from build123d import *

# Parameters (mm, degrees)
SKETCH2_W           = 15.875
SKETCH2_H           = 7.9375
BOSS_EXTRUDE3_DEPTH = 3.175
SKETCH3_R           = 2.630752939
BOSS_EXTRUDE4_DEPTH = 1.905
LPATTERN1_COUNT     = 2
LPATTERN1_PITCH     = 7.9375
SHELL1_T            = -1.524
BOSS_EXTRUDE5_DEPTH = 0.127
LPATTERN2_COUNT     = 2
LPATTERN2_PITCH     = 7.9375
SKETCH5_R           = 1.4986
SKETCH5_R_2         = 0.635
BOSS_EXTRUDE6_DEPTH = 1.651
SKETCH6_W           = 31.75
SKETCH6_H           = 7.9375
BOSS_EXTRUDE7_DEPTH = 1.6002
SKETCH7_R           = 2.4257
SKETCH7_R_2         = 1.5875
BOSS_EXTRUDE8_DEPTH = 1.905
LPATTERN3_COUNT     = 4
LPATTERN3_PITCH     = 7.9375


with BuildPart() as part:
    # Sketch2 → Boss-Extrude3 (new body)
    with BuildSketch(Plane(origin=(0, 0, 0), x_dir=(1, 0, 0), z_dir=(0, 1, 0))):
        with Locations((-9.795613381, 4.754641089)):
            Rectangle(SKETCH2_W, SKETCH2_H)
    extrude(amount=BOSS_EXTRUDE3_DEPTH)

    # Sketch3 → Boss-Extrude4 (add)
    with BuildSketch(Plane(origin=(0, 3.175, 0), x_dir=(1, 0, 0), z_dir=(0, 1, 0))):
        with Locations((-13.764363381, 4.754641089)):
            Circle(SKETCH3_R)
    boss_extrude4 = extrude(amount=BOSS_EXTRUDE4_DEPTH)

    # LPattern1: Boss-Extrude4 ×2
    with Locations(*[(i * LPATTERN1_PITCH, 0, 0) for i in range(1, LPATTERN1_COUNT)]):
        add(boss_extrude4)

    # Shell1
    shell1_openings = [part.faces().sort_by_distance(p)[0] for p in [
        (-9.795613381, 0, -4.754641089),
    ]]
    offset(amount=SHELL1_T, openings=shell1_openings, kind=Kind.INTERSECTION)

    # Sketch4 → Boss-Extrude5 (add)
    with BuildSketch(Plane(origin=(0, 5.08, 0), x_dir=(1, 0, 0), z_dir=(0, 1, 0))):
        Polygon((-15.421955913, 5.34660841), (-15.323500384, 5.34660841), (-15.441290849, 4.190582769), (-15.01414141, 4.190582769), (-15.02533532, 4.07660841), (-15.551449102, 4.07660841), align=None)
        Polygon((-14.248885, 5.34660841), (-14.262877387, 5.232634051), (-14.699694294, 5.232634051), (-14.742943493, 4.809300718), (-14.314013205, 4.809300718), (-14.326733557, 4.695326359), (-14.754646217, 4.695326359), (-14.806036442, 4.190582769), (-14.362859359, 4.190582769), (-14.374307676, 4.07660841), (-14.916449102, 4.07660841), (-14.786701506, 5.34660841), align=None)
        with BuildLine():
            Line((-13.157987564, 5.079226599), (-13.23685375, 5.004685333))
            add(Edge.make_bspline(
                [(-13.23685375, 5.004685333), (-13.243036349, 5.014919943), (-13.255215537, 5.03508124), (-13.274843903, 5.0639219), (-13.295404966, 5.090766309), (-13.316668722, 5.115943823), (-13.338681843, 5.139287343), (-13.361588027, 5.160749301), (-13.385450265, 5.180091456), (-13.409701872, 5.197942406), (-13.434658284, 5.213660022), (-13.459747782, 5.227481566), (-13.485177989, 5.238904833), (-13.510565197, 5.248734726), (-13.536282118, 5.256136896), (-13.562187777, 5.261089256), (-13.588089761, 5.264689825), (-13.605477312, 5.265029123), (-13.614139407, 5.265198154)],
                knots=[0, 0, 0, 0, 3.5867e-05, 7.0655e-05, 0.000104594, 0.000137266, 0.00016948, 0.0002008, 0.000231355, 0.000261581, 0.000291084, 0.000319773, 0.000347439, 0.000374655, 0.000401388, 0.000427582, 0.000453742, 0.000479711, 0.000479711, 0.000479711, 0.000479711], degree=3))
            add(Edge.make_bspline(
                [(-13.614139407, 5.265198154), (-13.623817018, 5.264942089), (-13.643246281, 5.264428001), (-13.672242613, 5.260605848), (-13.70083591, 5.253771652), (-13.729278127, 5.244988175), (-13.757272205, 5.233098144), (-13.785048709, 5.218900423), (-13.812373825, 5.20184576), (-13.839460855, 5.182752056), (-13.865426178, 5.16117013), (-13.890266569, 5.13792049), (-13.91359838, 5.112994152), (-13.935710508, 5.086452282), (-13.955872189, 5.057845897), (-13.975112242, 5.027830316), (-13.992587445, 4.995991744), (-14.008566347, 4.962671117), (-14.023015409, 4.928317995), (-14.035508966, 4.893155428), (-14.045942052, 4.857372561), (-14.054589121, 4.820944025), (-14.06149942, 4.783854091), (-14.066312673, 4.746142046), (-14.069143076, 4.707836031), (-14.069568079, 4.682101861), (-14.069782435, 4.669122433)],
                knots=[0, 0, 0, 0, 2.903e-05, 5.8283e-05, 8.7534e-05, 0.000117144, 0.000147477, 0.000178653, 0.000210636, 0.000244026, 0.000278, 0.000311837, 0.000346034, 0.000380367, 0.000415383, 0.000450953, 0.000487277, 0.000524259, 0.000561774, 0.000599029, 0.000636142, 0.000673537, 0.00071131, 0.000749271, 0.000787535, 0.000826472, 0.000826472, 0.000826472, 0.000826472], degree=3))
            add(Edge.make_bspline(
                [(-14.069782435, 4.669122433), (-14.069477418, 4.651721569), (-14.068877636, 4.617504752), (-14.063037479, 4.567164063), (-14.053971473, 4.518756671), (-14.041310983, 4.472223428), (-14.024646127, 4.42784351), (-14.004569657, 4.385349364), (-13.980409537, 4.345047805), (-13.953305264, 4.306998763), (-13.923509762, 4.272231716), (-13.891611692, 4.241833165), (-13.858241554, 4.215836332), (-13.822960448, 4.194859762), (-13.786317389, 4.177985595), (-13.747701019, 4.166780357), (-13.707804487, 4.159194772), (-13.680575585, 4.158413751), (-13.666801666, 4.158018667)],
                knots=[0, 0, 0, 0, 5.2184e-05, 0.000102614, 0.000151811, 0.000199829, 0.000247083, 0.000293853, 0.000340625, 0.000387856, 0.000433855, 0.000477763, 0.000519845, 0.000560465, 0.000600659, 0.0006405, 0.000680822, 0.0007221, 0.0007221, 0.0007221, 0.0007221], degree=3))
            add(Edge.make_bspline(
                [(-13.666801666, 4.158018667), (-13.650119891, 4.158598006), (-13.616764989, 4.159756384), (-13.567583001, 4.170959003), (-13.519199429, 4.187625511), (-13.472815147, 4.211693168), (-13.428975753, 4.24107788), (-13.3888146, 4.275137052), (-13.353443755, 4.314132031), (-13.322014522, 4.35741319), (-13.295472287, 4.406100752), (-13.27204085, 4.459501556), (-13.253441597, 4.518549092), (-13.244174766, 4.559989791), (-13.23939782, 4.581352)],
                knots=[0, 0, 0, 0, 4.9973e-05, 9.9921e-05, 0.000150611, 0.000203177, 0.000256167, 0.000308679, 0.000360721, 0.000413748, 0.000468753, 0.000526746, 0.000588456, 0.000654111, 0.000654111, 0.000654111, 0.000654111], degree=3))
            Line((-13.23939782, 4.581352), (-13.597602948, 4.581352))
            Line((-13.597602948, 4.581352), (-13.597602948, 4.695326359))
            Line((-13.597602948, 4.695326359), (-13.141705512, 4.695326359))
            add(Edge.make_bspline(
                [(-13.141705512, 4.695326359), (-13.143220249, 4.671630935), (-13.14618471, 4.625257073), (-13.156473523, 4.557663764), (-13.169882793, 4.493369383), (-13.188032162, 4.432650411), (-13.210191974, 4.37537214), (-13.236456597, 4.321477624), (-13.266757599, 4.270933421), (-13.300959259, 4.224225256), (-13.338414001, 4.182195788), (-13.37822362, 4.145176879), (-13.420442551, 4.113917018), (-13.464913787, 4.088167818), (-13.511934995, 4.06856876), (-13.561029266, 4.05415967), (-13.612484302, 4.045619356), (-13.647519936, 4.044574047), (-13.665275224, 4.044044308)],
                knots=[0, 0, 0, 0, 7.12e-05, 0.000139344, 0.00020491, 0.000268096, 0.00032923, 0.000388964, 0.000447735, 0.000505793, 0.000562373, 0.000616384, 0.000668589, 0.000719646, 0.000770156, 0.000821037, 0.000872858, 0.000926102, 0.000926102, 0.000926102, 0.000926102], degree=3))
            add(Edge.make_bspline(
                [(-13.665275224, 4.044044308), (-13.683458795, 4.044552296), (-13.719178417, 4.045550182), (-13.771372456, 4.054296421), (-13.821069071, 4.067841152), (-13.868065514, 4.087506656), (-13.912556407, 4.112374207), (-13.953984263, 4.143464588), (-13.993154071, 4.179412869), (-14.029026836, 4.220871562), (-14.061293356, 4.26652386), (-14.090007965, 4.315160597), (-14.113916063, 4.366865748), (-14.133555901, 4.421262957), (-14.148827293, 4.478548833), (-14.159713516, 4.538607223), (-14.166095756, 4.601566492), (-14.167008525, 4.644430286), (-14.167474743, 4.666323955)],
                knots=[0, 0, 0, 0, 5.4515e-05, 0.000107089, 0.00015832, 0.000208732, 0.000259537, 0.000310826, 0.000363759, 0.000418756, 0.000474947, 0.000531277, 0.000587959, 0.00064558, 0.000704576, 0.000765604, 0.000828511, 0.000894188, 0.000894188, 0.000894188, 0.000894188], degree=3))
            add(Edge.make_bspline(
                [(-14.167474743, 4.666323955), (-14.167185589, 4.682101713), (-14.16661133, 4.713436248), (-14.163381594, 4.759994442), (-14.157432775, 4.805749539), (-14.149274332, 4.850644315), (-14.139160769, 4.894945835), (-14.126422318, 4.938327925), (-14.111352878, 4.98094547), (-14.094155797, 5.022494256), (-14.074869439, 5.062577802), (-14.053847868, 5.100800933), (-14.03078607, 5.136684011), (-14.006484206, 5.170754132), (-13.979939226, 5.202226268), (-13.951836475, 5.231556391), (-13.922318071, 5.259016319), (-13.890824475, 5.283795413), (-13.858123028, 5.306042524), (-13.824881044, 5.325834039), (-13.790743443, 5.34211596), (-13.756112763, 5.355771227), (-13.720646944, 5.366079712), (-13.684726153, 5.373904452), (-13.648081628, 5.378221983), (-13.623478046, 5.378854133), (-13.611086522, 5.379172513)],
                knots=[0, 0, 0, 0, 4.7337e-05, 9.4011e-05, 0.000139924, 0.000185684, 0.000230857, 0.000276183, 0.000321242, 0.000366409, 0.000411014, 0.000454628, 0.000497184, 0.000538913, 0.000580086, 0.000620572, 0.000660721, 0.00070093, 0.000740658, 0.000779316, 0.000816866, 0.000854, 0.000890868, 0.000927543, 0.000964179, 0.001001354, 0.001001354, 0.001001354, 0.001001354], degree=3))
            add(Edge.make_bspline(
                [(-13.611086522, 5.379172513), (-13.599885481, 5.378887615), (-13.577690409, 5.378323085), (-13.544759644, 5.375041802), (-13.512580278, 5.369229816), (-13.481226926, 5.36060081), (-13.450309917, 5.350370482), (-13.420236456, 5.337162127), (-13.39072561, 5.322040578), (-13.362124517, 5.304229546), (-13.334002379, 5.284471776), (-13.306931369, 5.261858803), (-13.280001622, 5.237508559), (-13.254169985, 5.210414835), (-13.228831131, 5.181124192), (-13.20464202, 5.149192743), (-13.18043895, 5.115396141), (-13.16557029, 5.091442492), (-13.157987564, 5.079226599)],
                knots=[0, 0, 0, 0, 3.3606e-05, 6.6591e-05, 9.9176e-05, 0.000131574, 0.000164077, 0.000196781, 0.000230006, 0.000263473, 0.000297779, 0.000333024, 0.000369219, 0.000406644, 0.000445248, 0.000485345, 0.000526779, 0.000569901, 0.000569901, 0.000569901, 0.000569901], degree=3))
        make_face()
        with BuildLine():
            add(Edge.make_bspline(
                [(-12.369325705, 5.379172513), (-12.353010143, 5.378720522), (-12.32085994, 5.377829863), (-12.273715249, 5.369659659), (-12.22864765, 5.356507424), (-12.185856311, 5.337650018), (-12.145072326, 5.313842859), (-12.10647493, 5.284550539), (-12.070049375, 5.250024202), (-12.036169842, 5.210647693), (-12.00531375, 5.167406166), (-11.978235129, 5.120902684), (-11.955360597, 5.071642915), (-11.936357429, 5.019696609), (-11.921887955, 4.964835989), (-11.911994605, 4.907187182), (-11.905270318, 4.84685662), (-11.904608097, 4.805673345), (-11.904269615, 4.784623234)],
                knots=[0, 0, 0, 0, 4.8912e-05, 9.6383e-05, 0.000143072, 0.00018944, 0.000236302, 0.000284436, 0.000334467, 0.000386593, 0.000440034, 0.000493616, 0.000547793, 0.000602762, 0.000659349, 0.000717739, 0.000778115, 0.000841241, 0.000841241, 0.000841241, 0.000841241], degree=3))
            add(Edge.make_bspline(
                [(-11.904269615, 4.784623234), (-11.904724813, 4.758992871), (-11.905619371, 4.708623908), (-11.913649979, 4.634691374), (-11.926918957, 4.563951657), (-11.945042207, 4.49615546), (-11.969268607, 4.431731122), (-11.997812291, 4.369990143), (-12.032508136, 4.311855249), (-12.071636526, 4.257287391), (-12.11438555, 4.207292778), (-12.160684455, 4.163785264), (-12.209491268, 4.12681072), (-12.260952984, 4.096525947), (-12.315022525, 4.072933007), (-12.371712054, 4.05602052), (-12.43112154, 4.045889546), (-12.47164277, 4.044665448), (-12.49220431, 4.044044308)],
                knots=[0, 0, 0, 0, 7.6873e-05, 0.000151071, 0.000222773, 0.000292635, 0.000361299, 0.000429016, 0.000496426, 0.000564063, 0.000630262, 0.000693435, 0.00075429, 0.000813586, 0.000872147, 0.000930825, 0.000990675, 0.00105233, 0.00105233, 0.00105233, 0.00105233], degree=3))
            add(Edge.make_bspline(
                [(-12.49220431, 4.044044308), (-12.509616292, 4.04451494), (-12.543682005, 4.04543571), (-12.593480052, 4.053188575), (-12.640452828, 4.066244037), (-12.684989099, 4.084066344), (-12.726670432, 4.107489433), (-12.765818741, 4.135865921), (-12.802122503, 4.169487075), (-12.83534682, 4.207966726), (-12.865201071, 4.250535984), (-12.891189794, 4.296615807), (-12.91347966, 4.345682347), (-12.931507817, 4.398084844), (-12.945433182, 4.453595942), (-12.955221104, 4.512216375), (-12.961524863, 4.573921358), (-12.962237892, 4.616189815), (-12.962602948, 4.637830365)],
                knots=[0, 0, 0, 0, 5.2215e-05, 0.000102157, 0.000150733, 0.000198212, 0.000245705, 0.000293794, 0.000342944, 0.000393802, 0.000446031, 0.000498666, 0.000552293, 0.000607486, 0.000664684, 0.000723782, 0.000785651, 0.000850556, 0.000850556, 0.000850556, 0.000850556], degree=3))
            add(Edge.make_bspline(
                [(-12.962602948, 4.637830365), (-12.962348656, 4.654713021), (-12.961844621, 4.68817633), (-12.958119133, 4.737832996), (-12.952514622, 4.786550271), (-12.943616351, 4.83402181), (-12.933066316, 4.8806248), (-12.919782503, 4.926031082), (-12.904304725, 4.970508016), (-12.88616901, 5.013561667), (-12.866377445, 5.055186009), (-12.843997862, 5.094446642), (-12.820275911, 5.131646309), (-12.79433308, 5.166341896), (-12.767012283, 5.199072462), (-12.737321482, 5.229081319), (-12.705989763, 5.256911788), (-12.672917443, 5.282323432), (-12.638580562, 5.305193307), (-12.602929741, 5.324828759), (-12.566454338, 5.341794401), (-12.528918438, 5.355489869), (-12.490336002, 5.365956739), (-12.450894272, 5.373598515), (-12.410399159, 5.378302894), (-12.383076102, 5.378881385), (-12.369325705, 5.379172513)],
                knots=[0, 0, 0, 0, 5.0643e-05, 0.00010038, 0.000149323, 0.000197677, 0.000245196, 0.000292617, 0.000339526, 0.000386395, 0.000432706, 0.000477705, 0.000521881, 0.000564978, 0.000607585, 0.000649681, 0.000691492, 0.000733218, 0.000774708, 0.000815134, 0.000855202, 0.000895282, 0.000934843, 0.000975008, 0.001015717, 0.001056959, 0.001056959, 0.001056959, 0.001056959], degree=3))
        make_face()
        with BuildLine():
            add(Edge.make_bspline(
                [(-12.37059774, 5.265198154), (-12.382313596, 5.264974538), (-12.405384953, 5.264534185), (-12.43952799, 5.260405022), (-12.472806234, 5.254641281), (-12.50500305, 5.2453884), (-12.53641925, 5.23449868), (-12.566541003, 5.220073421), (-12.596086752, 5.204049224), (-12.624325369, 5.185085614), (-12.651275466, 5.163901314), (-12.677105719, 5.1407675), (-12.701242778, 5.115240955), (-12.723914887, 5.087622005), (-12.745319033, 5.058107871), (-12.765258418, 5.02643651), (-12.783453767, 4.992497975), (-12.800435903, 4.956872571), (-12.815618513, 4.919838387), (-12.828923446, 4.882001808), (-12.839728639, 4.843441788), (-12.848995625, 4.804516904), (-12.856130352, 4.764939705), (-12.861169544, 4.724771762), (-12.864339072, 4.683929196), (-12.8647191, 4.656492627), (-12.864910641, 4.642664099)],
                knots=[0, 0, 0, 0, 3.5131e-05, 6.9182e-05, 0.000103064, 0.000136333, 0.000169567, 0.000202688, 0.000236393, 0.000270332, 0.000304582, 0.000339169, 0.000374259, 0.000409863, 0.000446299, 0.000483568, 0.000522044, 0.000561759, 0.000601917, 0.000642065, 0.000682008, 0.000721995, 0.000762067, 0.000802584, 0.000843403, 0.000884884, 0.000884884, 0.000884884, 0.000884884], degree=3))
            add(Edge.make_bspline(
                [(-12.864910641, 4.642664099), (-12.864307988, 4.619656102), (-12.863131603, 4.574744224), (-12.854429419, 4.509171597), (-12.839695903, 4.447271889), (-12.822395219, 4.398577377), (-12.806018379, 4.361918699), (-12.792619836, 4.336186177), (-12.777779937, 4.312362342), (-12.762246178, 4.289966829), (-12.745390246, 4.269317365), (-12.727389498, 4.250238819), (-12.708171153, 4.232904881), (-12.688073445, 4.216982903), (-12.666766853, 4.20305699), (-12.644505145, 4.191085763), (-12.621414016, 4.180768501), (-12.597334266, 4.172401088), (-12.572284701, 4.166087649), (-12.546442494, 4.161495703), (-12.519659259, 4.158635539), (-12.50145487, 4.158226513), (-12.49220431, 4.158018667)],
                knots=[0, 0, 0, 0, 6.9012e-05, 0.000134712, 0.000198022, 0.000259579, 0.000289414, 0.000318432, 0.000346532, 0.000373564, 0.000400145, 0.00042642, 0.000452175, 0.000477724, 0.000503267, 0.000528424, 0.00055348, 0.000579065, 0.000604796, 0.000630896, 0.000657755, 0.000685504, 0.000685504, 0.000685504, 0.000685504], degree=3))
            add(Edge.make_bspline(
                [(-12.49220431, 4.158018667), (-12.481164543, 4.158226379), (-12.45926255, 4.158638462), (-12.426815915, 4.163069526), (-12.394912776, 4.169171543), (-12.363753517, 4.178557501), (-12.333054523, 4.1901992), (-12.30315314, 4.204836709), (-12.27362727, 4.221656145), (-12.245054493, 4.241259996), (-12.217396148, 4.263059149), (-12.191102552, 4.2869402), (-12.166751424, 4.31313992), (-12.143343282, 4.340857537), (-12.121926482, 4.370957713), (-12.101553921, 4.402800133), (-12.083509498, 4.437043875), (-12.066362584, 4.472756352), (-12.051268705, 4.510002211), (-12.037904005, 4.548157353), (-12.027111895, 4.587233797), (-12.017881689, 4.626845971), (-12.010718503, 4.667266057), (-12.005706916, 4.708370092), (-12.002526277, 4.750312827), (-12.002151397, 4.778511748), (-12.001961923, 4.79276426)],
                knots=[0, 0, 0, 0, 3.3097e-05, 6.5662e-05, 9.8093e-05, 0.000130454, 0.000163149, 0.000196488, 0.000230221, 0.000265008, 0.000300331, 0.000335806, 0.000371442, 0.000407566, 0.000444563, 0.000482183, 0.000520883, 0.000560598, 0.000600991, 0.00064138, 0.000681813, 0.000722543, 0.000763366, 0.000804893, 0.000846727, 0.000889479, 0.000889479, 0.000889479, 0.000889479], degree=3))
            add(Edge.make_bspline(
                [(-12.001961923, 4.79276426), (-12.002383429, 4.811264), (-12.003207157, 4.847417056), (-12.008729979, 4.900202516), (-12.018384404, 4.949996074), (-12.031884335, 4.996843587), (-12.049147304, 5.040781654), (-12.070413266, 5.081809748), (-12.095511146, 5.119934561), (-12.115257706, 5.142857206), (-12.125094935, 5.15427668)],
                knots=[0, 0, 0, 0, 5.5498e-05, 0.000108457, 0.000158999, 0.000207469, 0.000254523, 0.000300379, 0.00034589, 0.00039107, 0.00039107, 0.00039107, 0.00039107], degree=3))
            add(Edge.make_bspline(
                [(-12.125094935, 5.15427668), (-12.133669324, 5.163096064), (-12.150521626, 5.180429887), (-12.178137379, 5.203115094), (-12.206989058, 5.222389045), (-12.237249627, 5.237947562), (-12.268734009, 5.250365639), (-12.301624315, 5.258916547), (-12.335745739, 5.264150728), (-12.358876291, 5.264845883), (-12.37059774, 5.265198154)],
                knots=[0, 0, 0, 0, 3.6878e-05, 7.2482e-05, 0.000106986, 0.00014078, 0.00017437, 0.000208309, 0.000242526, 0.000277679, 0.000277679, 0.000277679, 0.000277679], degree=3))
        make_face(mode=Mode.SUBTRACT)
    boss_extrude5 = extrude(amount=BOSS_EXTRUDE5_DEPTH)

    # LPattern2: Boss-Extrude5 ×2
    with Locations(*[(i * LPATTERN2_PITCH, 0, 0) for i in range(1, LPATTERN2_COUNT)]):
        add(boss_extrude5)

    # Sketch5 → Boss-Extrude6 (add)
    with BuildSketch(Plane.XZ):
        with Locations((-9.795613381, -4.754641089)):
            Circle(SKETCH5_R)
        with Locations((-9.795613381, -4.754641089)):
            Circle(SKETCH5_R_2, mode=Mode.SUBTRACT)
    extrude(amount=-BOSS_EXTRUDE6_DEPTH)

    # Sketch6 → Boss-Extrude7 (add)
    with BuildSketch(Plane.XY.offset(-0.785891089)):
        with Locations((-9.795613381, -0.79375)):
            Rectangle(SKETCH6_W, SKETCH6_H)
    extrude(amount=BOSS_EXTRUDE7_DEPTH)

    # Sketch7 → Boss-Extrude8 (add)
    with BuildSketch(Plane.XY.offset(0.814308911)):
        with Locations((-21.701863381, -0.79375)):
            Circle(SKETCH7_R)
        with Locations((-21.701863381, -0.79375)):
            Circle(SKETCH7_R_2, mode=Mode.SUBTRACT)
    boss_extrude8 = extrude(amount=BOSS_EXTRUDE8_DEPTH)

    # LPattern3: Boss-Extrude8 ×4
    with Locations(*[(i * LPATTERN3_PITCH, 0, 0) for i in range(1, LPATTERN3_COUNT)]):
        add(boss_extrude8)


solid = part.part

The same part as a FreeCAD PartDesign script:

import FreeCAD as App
import Part
import Sketcher
Q = App.Units.Quantity


def faces_at(feature, points):
    """Names of the faces that lie closest to the given points."""
    faces = feature.Shape.Faces
    near = lambda p: min(range(len(faces)), key=lambda i: faces[i].distToShape(Part.Vertex(*p))[0])
    return sorted({f"Face{near(p) + 1}" for p in points})

doc = App.newDocument("Part")
params = doc.addObject("Spreadsheet::Sheet", "Params")
for row, (alias, value) in enumerate([
    ("sketch1_width", "0.625 in"),
    ("sketch1_height", "0.3125 in"),
    ("pad1_length", "0.125 in"),
    ("pad2_length", "0.075 in"),
    ("linearpattern_pitch", "0.3125 in"),
    ("thickness_wall", "0.06 in"),
    ("pad3_length", "0.005 in"),
    ("linearpattern2_pitch", "0.3125 in"),
    ("sketch4_diameter", "0.05 in"),
    ("sketch4_diameter2", "0.118 in"),
    ("pad4_length", "0.065 in"),
    ("sketch5_width", "1.25 in"),
    ("sketch5_height", "0.3125 in"),
    ("pad5_length", "0.063 in"),
    ("sketch6_diameter", "0.191 in"),
    ("sketch6_diameter2", "0.125 in"),
    ("pad6_length", "0.075 in"),
    ("linearpattern3_pitch", "0.3125 in"),
], start=1):
    params.set(f"A{row}", alias)
    params.set(f"B{row}", "=" + value)
    params.setAlias(f"B{row}", alias)

body = doc.addObject("PartDesign::Body", "Body")

# Sketch on XZ plane
sketch1 = body.newObject("Sketcher::SketchObject", "Sketch")
sketch1.AttachmentSupport = (doc.getObject("XZ_Plane"), [""])
sketch1.MapMode = "FlatFace"
sketch1.addGeometry([
    Part.LineSegment(App.Vector(-18, -9, 0), App.Vector(-18, -1, 0)),
    Part.LineSegment(App.Vector(-18, -1, 0), App.Vector(-2, -1, 0)),
    Part.LineSegment(App.Vector(-2, -1, 0), App.Vector(-2, -9, 0)),
    Part.LineSegment(App.Vector(-2, -9, 0), App.Vector(-18, -9, 0)),
], False)
sketch1.addConstraint([
    Sketcher.Constraint("Coincident", 0, 2, 1, 1),
    Sketcher.Constraint("Coincident", 1, 2, 2, 1),
    Sketcher.Constraint("Coincident", 2, 2, 3, 1),
    Sketcher.Constraint("Coincident", 3, 2, 0, 1),
    Sketcher.Constraint("Vertical", 0),
    Sketcher.Constraint("Horizontal", 1),
    Sketcher.Constraint("Vertical", 2),
    Sketcher.Constraint("Horizontal", 3),
    Sketcher.Constraint("DistanceX", 1, 1, 1, 2, Q("0.625 in")),
    Sketcher.Constraint("DistanceY", 0, 1, 0, 2, Q("0.3125 in")),
    Sketcher.Constraint("DistanceY", 0, 2, -1, 1, Q("0.785891 mm")),
    Sketcher.Constraint("DistanceX", 0, 2, -1, 1, Q("17.733113 mm")),
])
sketch1.setExpression("Constraints[8]", "Params.sketch1_width")
sketch1.setExpression("Constraints[9]", "Params.sketch1_height")
pad1 = body.newObject("PartDesign::Pad", "Pad")
pad1.Profile = sketch1
pad1.setExpression("Length", "Params.pad1_length")
pad1.Reversed = True

# Sketch on XZ plane
sketch2 = body.newObject("Sketcher::SketchObject", "Sketch001")
sketch2.AttachmentSupport = (doc.getObject("XZ_Plane"), [""])
sketch2.MapMode = "FlatFace"
sketch2.AttachmentOffset = App.Placement(App.Vector(0, 0, -0.125 * 25.4), App.Rotation())
sketch2.addGeometry(Part.Circle(App.Vector(-13.8, -4.8, 0), App.Vector(0, 0, 1), 2.6), False)
sketch2.addConstraint([
    Sketcher.Constraint("Diameter", 0, Q("5.261506 mm")),
    Sketcher.Constraint("DistanceY", 0, 3, -1, 1, Q("4.754641 mm")),
    Sketcher.Constraint("DistanceX", 0, 3, -1, 1, Q("13.764363 mm")),
])
pad2 = body.newObject("PartDesign::Pad", "Pad001")
pad2.Profile = sketch2
pad2.setExpression("Length", "Params.pad2_length")
pad2.Reversed = True
doc.recompute()

linearpattern = body.newObject("PartDesign::LinearPattern", "LinearPattern")
linearpattern.Originals = [pad2]
linearpattern.Direction = (doc.getObject("X_Axis"), [""])
linearpattern.Mode = "offset"
linearpattern.setExpression("Offset", "Params.linearpattern_pitch")
linearpattern.Occurrences = 2
body.Tip = linearpattern
doc.recompute()

thickness = body.newObject("PartDesign::Thickness", "Thickness")
thickness.Base = (linearpattern, faces_at(linearpattern, [(-9.796, 0, -4.755)]))
thickness.setExpression("Value", "Params.thickness_wall")
thickness.Reversed = True
thickness.Join = "Intersection"

# Sketch on XZ plane
sketch3 = body.newObject("Sketcher::SketchObject", "Sketch002")
sketch3.AttachmentSupport = (doc.getObject("XZ_Plane"), [""])
sketch3.MapMode = "FlatFace"
sketch3.AttachmentOffset = App.Placement(App.Vector(0, 0, -0.2 * 25.4), App.Rotation())
sketch3.addGeometry([
    Part.LineSegment(App.Vector(-15.3235, -5.346608, 0), App.Vector(-15.421956, -5.346608, 0)),  # 0
    Part.LineSegment(App.Vector(-15.421956, -5.346608, 0), App.Vector(-15.551449, -4.076608, 0)),  # 1
    Part.LineSegment(App.Vector(-15.551449, -4.076608, 0), App.Vector(-15.025335, -4.076608, 0)),  # 2
    Part.LineSegment(App.Vector(-15.025335, -4.076608, 0), App.Vector(-15.014141, -4.190583, 0)),  # 3
    Part.LineSegment(App.Vector(-15.014141, -4.190583, 0), App.Vector(-15.441291, -4.190583, 0)),  # 4
    Part.LineSegment(App.Vector(-15.441291, -4.190583, 0), App.Vector(-15.3235, -5.346608, 0)),  # 5
    Part.LineSegment(App.Vector(-14.262877, -5.232634, 0), App.Vector(-14.248885, -5.346608, 0)),  # 6
    Part.LineSegment(App.Vector(-14.248885, -5.346608, 0), App.Vector(-14.786702, -5.346608, 0)),  # 7
    Part.LineSegment(App.Vector(-14.786702, -5.346608, 0), App.Vector(-14.916449, -4.076608, 0)),  # 8
    Part.LineSegment(App.Vector(-14.916449, -4.076608, 0), App.Vector(-14.374308, -4.076608, 0)),  # 9
    Part.LineSegment(App.Vector(-14.374308, -4.076608, 0), App.Vector(-14.362859, -4.190583, 0)),  # 10
    Part.LineSegment(App.Vector(-14.362859, -4.190583, 0), App.Vector(-14.806036, -4.190583, 0)),  # 11
    Part.LineSegment(App.Vector(-14.806036, -4.190583, 0), App.Vector(-14.754646, -4.695326, 0)),  # 12
    Part.LineSegment(App.Vector(-14.754646, -4.695326, 0), App.Vector(-14.326734, -4.695326, 0)),  # 13
    Part.LineSegment(App.Vector(-14.326734, -4.695326, 0), App.Vector(-14.314013, -4.809301, 0)),  # 14
    Part.LineSegment(App.Vector(-14.314013, -4.809301, 0), App.Vector(-14.742943, -4.809301, 0)),  # 15
    Part.LineSegment(App.Vector(-14.742943, -4.809301, 0), App.Vector(-14.699694, -5.232634, 0)),  # 16
    Part.LineSegment(App.Vector(-14.699694, -5.232634, 0), App.Vector(-14.262877, -5.232634, 0)),  # 17
    Part.LineSegment(App.Vector(-13.236854, -5.004685, 0), App.Vector(-13.157988, -5.079227, 0)),  # 18
    Part.BSplineCurve([App.Vector(-13.611087, -5.379173, 0), App.Vector(-13.599885, -5.378888, 0), App.Vector(-13.57769, -5.378323, 0), App.Vector(-13.54476, -5.375042, 0), App.Vector(-13.51258, -5.36923, 0), App.Vector(-13.481227, -5.360601, 0), App.Vector(-13.45031, -5.35037, 0), App.Vector(-13.420236, -5.337162, 0), App.Vector(-13.390726, -5.322041, 0), App.Vector(-13.362125, -5.30423, 0), App.Vector(-13.334002, -5.284472, 0), App.Vector(-13.306931, -5.261859, 0), App.Vector(-13.280002, -5.237509, 0), App.Vector(-13.25417, -5.210415, 0), App.Vector(-13.228831, -5.181124, 0), App.Vector(-13.204642, -5.149193, 0), App.Vector(-13.180439, -5.115396, 0), App.Vector(-13.16557, -5.091442, 0), App.Vector(-13.157988, -5.079227, 0)], [4, 1, 1, 1, 1, 1, 1, 1, 1, 1, 1, 1, 1, 1, 1, 1, 4], [0, 0.000033606, 0.000066591, 0.000099176, 0.000131574, 0.000164077, 0.000196781, 0.000230006, 0.000263473, 0.000297779, 0.000333024, 0.000369219, 0.000406644, 0.000445248, 0.000485345, 0.000526779, 0.000569901], False, 3, [1, 1, 1, 1, 1, 1, 1, 1, 1, 1, 1, 1, 1, 1, 1, 1, 1, 1, 1], False),  # 19
    Part.BSplineCurve([App.Vector(-14.167475, -4.666324, 0), App.Vector(-14.167186, -4.682102, 0), App.Vector(-14.166611, -4.713436, 0), App.Vector(-14.163382, -4.759994, 0), App.Vector(-14.157433, -4.80575, 0), App.Vector(-14.149274, -4.850644, 0), App.Vector(-14.139161, -4.894946, 0), App.Vector(-14.126422, -4.938328, 0), App.Vector(-14.111353, -4.980945, 0), App.Vector(-14.094156, -5.022494, 0), App.Vector(-14.074869, -5.062578, 0), App.Vector(-14.053848, -5.100801, 0), App.Vector(-14.030786, -5.136684, 0), App.Vector(-14.006484, -5.170754, 0), App.Vector(-13.979939, -5.202226, 0), App.Vector(-13.951836, -5.231556, 0), App.Vector(-13.922318, -5.259016, 0), App.Vector(-13.890824, -5.283795, 0), App.Vector(-13.858123, -5.306043, 0), App.Vector(-13.824881, -5.325834, 0), App.Vector(-13.790743, -5.342116, 0), App.Vector(-13.756113, -5.355771, 0), App.Vector(-13.720647, -5.36608, 0), App.Vector(-13.684726, -5.373904, 0), App.Vector(-13.648082, -5.378222, 0), App.Vector(-13.623478, -5.378854, 0), App.Vector(-13.611087, -5.379173, 0)], [4, 1, 1, 1, 1, 1, 1, 1, 1, 1, 1, 1, 1, 1, 1, 1, 1, 1, 1, 1, 1, 1, 1, 1, 4], [0, 0.000047337, 0.000094011, 0.000139924, 0.000185684, 0.000230857, 0.000276183, 0.000321242, 0.000366409, 0.000411014, 0.000454628, 0.000497184, 0.000538913, 0.000580086, 0.000620572, 0.000660721, 0.00070093, 0.000740658, 0.000779316, 0.000816866, 0.000854, 0.000890868, 0.000927543, 0.000964179, 0.001001354], False, 3, [1, 1, 1, 1, 1, 1, 1, 1, 1, 1, 1, 1, 1, 1, 1, 1, 1, 1, 1, 1, 1, 1, 1, 1, 1, 1, 1], False),  # 20
    Part.BSplineCurve([App.Vector(-13.665275, -4.044044, 0), App.Vector(-13.683459, -4.044552, 0), App.Vector(-13.719178, -4.04555, 0), App.Vector(-13.771372, -4.054296, 0), App.Vector(-13.821069, -4.067841, 0), App.Vector(-13.868066, -4.087507, 0), App.Vector(-13.912556, -4.112374, 0), App.Vector(-13.953984, -4.143465, 0), App.Vector(-13.993154, -4.179413, 0), App.Vector(-14.029027, -4.220872, 0), App.Vector(-14.061293, -4.266524, 0), App.Vector(-14.090008, -4.315161, 0), App.Vector(-14.113916, -4.366866, 0), App.Vector(-14.133556, -4.421263, 0), App.Vector(-14.148827, -4.478549, 0), App.Vector(-14.159714, -4.538607, 0), App.Vector(-14.166096, -4.601566, 0), App.Vector(-14.167009, -4.64443, 0), App.Vector(-14.167475, -4.666324, 0)], [4, 1, 1, 1, 1, 1, 1, 1, 1, 1, 1, 1, 1, 1, 1, 1, 4], [0, 0.000054515, 0.000107089, 0.00015832, 0.000208732, 0.000259537, 0.000310826, 0.000363759, 0.000418756, 0.000474947, 0.000531277, 0.000587959, 0.00064558, 0.000704576, 0.000765604, 0.000828511, 0.000894188], False, 3, [1, 1, 1, 1, 1, 1, 1, 1, 1, 1, 1, 1, 1, 1, 1, 1, 1, 1, 1], False),  # 21
    Part.BSplineCurve([App.Vector(-13.141706, -4.695326, 0), App.Vector(-13.14322, -4.671631, 0), App.Vector(-13.146185, -4.625257, 0), App.Vector(-13.156474, -4.557664, 0), App.Vector(-13.169883, -4.493369, 0), App.Vector(-13.188032, -4.43265, 0), App.Vector(-13.210192, -4.375372, 0), App.Vector(-13.236457, -4.321478, 0), App.Vector(-13.266758, -4.270933, 0), App.Vector(-13.300959, -4.224225, 0), App.Vector(-13.338414, -4.182196, 0), App.Vector(-13.378224, -4.145177, 0), App.Vector(-13.420443, -4.113917, 0), App.Vector(-13.464914, -4.088168, 0), App.Vector(-13.511935, -4.068569, 0), App.Vector(-13.561029, -4.05416, 0), App.Vector(-13.612484, -4.045619, 0), App.Vector(-13.64752, -4.044574, 0), App.Vector(-13.665275, -4.044044, 0)], [4, 1, 1, 1, 1, 1, 1, 1, 1, 1, 1, 1, 1, 1, 1, 1, 4], [0, 0.0000712, 0.000139344, 0.00020491, 0.000268096, 0.00032923, 0.000388964, 0.000447735, 0.000505793, 0.000562373, 0.000616384, 0.000668589, 0.000719646, 0.000770156, 0.000821037, 0.000872858, 0.000926102], False, 3, [1, 1, 1, 1, 1, 1, 1, 1, 1, 1, 1, 1, 1, 1, 1, 1, 1, 1, 1], False),  # 22
    Part.LineSegment(App.Vector(-13.141706, -4.695326, 0), App.Vector(-13.597603, -4.695326, 0)),  # 23
    Part.LineSegment(App.Vector(-13.597603, -4.695326, 0), App.Vector(-13.597603, -4.581352, 0)),  # 24
    Part.LineSegment(App.Vector(-13.597603, -4.581352, 0), App.Vector(-13.239398, -4.581352, 0)),  # 25
    Part.BSplineCurve([App.Vector(-13.666802, -4.158019, 0), App.Vector(-13.65012, -4.158598, 0), App.Vector(-13.616765, -4.159756, 0), App.Vector(-13.567583, -4.170959, 0), App.Vector(-13.519199, -4.187626, 0), App.Vector(-13.472815, -4.211693, 0), App.Vector(-13.428976, -4.241078, 0), App.Vector(-13.388815, -4.275137, 0), App.Vector(-13.353444, -4.314132, 0), App.Vector(-13.322015, -4.357413, 0), App.Vector(-13.295472, -4.406101, 0), App.Vector(-13.272041, -4.459502, 0), App.Vector(-13.253442, -4.518549, 0), App.Vector(-13.244175, -4.55999, 0), App.Vector(-13.239398, -4.581352, 0)], [4, 1, 1, 1, 1, 1, 1, 1, 1, 1, 1, 1, 4], [0, 0.000049973, 0.000099921, 0.000150611, 0.000203177, 0.000256167, 0.000308679, 0.000360721, 0.000413748, 0.000468753, 0.000526746, 0.000588456, 0.000654111], False, 3, [1, 1, 1, 1, 1, 1, 1, 1, 1, 1, 1, 1, 1, 1, 1], False),  # 26
    Part.BSplineCurve([App.Vector(-14.069782, -4.669122, 0), App.Vector(-14.069477, -4.651722, 0), App.Vector(-14.068878, -4.617505, 0), App.Vector(-14.063037, -4.567164, 0), App.Vector(-14.053971, -4.518757, 0), App.Vector(-14.041311, -4.472223, 0), App.Vector(-14.024646, -4.427844, 0), App.Vector(-14.00457, -4.385349, 0), App.Vector(-13.98041, -4.345048, 0), App.Vector(-13.953305, -4.306999, 0), App.Vector(-13.92351, -4.272232, 0), App.Vector(-13.891612, -4.241833, 0), App.Vector(-13.858242, -4.215836, 0), App.Vector(-13.82296, -4.19486, 0), App.Vector(-13.786317, -4.177986, 0), App.Vector(-13.747701, -4.16678, 0), App.Vector(-13.707804, -4.159195, 0), App.Vector(-13.680576, -4.158414, 0), App.Vector(-13.666802, -4.158019, 0)], [4, 1, 1, 1, 1, 1, 1, 1, 1, 1, 1, 1, 1, 1, 1, 1, 4], [0, 0.000052184, 0.000102614, 0.000151811, 0.000199829, 0.000247083, 0.000293853, 0.000340625, 0.000387856, 0.000433855, 0.000477763, 0.000519845, 0.000560465, 0.000600659, 0.0006405, 0.000680822, 0.0007221], False, 3, [1, 1, 1, 1, 1, 1, 1, 1, 1, 1, 1, 1, 1, 1, 1, 1, 1, 1, 1], False),  # 27
    Part.BSplineCurve([App.Vector(-13.614139, -5.265198, 0), App.Vector(-13.623817, -5.264942, 0), App.Vector(-13.643246, -5.264428, 0), App.Vector(-13.672243, -5.260606, 0), App.Vector(-13.700836, -5.253772, 0), App.Vector(-13.729278, -5.244988, 0), App.Vector(-13.757272, -5.233098, 0), App.Vector(-13.785049, -5.2189, 0), App.Vector(-13.812374, -5.201846, 0), App.Vector(-13.839461, -5.182752, 0), App.Vector(-13.865426, -5.16117, 0), App.Vector(-13.890267, -5.13792, 0), App.Vector(-13.913598, -5.112994, 0), App.Vector(-13.935711, -5.086452, 0), App.Vector(-13.955872, -5.057846, 0), App.Vector(-13.975112, -5.02783, 0), App.Vector(-13.992587, -4.995992, 0), App.Vector(-14.008566, -4.962671, 0), App.Vector(-14.023015, -4.928318, 0), App.Vector(-14.035509, -4.893155, 0), App.Vector(-14.045942, -4.857373, 0), App.Vector(-14.054589, -4.820944, 0), App.Vector(-14.061499, -4.783854, 0), App.Vector(-14.066313, -4.746142, 0), App.Vector(-14.069143, -4.707836, 0), App.Vector(-14.069568, -4.682102, 0), App.Vector(-14.069782, -4.669122, 0)], [4, 1, 1, 1, 1, 1, 1, 1, 1, 1, 1, 1, 1, 1, 1, 1, 1, 1, 1, 1, 1, 1, 1, 1, 4], [0, 0.00002903, 0.000058283, 0.000087534, 0.000117144, 0.000147477, 0.000178653, 0.000210636, 0.000244026, 0.000278, 0.000311837, 0.000346034, 0.000380367, 0.000415383, 0.000450953, 0.000487277, 0.000524259, 0.000561774, 0.000599029, 0.000636142, 0.000673537, 0.00071131, 0.000749271, 0.000787535, 0.000826472], False, 3, [1, 1, 1, 1, 1, 1, 1, 1, 1, 1, 1, 1, 1, 1, 1, 1, 1, 1, 1, 1, 1, 1, 1, 1, 1, 1, 1], False),  # 28
    Part.BSplineCurve([App.Vector(-13.236854, -5.004685, 0), App.Vector(-13.243036, -5.01492, 0), App.Vector(-13.255216, -5.035081, 0), App.Vector(-13.274844, -5.063922, 0), App.Vector(-13.295405, -5.090766, 0), App.Vector(-13.316669, -5.115944, 0), App.Vector(-13.338682, -5.139287, 0), App.Vector(-13.361588, -5.160749, 0), App.Vector(-13.38545, -5.180091, 0), App.Vector(-13.409702, -5.197942, 0), App.Vector(-13.434658, -5.21366, 0), App.Vector(-13.459748, -5.227482, 0), App.Vector(-13.485178, -5.238905, 0), App.Vector(-13.510565, -5.248735, 0), App.Vector(-13.536282, -5.256137, 0), App.Vector(-13.562188, -5.261089, 0), App.Vector(-13.58809, -5.26469, 0), App.Vector(-13.605477, -5.265029, 0), App.Vector(-13.614139, -5.265198, 0)], [4, 1, 1, 1, 1, 1, 1, 1, 1, 1, 1, 1, 1, 1, 1, 1, 4], [0, 0.000035867, 0.000070655, 0.000104594, 0.000137266, 0.00016948, 0.0002008, 0.000231355, 0.000261581, 0.000291084, 0.000319773, 0.000347439, 0.000374655, 0.000401388, 0.000427582, 0.000453742, 0.000479711], False, 3, [1, 1, 1, 1, 1, 1, 1, 1, 1, 1, 1, 1, 1, 1, 1, 1, 1, 1, 1], False),  # 29
    Part.BSplineCurve([App.Vector(-12.369326, -5.379173, 0), App.Vector(-12.35301, -5.378721, 0), App.Vector(-12.32086, -5.37783, 0), App.Vector(-12.273715, -5.36966, 0), App.Vector(-12.228648, -5.356507, 0), App.Vector(-12.185856, -5.33765, 0), App.Vector(-12.145072, -5.313843, 0), App.Vector(-12.106475, -5.284551, 0), App.Vector(-12.070049, -5.250024, 0), App.Vector(-12.03617, -5.210648, 0), App.Vector(-12.005314, -5.167406, 0), App.Vector(-11.978235, -5.120903, 0), App.Vector(-11.955361, -5.071643, 0), App.Vector(-11.936357, -5.019697, 0), App.Vector(-11.921888, -4.964836, 0), App.Vector(-11.911995, -4.907187, 0), App.Vector(-11.90527, -4.846857, 0), App.Vector(-11.904608, -4.805673, 0), App.Vector(-11.90427, -4.784623, 0)], [4, 1, 1, 1, 1, 1, 1, 1, 1, 1, 1, 1, 1, 1, 1, 1, 4], [0, 0.000048912, 0.000096383, 0.000143072, 0.00018944, 0.000236302, 0.000284436, 0.000334467, 0.000386593, 0.000440034, 0.000493616, 0.000547793, 0.000602762, 0.000659349, 0.000717739, 0.000778115, 0.000841241], False, 3, [1, 1, 1, 1, 1, 1, 1, 1, 1, 1, 1, 1, 1, 1, 1, 1, 1, 1, 1], False),  # 30
    Part.BSplineCurve([App.Vector(-12.962603, -4.63783, 0), App.Vector(-12.962349, -4.654713, 0), App.Vector(-12.961845, -4.688176, 0), App.Vector(-12.958119, -4.737833, 0), App.Vector(-12.952515, -4.78655, 0), App.Vector(-12.943616, -4.834022, 0), App.Vector(-12.933066, -4.880625, 0), App.Vector(-12.919783, -4.926031, 0), App.Vector(-12.904305, -4.970508, 0), App.Vector(-12.886169, -5.013562, 0), App.Vector(-12.866377, -5.055186, 0), App.Vector(-12.843998, -5.094447, 0), App.Vector(-12.820276, -5.131646, 0), App.Vector(-12.794333, -5.166342, 0), App.Vector(-12.767012, -5.199072, 0), App.Vector(-12.737321, -5.229081, 0), App.Vector(-12.70599, -5.256912, 0), App.Vector(-12.672917, -5.282323, 0), App.Vector(-12.638581, -5.305193, 0), App.Vector(-12.60293, -5.324829, 0), App.Vector(-12.566454, -5.341794, 0), App.Vector(-12.528918, -5.35549, 0), App.Vector(-12.490336, -5.365957, 0), App.Vector(-12.450894, -5.373599, 0), App.Vector(-12.410399, -5.378303, 0), App.Vector(-12.383076, -5.378881, 0), App.Vector(-12.369326, -5.379173, 0)], [4, 1, 1, 1, 1, 1, 1, 1, 1, 1, 1, 1, 1, 1, 1, 1, 1, 1, 1, 1, 1, 1, 1, 1, 4], [0, 0.000050643, 0.00010038, 0.000149323, 0.000197677, 0.000245196, 0.000292617, 0.000339526, 0.000386395, 0.000432706, 0.000477705, 0.000521881, 0.000564978, 0.000607585, 0.000649681, 0.000691492, 0.000733218, 0.000774708, 0.000815134, 0.000855202, 0.000895282, 0.000934843, 0.000975008, 0.001015717, 0.001056959], False, 3, [1, 1, 1, 1, 1, 1, 1, 1, 1, 1, 1, 1, 1, 1, 1, 1, 1, 1, 1, 1, 1, 1, 1, 1, 1, 1, 1], False),  # 31
    Part.BSplineCurve([App.Vector(-12.492204, -4.044044, 0), App.Vector(-12.509616, -4.044515, 0), App.Vector(-12.543682, -4.045436, 0), App.Vector(-12.59348, -4.053189, 0), App.Vector(-12.640453, -4.066244, 0), App.Vector(-12.684989, -4.084066, 0), App.Vector(-12.72667, -4.107489, 0), App.Vector(-12.765819, -4.135866, 0), App.Vector(-12.802123, -4.169487, 0), App.Vector(-12.835347, -4.207967, 0), App.Vector(-12.865201, -4.250536, 0), App.Vector(-12.89119, -4.296616, 0), App.Vector(-12.91348, -4.345682, 0), App.Vector(-12.931508, -4.398085, 0), App.Vector(-12.945433, -4.453596, 0), App.Vector(-12.955221, -4.512216, 0), App.Vector(-12.961525, -4.573921, 0), App.Vector(-12.962238, -4.61619, 0), App.Vector(-12.962603, -4.63783, 0)], [4, 1, 1, 1, 1, 1, 1, 1, 1, 1, 1, 1, 1, 1, 1, 1, 4], [0, 0.000052215, 0.000102157, 0.000150733, 0.000198212, 0.000245705, 0.000293794, 0.000342944, 0.000393802, 0.000446031, 0.000498666, 0.000552293, 0.000607486, 0.000664684, 0.000723782, 0.000785651, 0.000850556], False, 3, [1, 1, 1, 1, 1, 1, 1, 1, 1, 1, 1, 1, 1, 1, 1, 1, 1, 1, 1], False),  # 32
    Part.BSplineCurve([App.Vector(-11.90427, -4.784623, 0), App.Vector(-11.904725, -4.758993, 0), App.Vector(-11.905619, -4.708624, 0), App.Vector(-11.91365, -4.634691, 0), App.Vector(-11.926919, -4.563952, 0), App.Vector(-11.945042, -4.496155, 0), App.Vector(-11.969269, -4.431731, 0), App.Vector(-11.997812, -4.36999, 0), App.Vector(-12.032508, -4.311855, 0), App.Vector(-12.071637, -4.257287, 0), App.Vector(-12.114386, -4.207293, 0), App.Vector(-12.160684, -4.163785, 0), App.Vector(-12.209491, -4.126811, 0), App.Vector(-12.260953, -4.096526, 0), App.Vector(-12.315023, -4.072933, 0), App.Vector(-12.371712, -4.056021, 0), App.Vector(-12.431122, -4.04589, 0), App.Vector(-12.471643, -4.044665, 0), App.Vector(-12.492204, -4.044044, 0)], [4, 1, 1, 1, 1, 1, 1, 1, 1, 1, 1, 1, 1, 1, 1, 1, 4], [0, 0.000076873, 0.000151071, 0.000222773, 0.000292635, 0.000361299, 0.000429016, 0.000496426, 0.000564063, 0.000630262, 0.000693435, 0.00075429, 0.000813586, 0.000872147, 0.000930825, 0.000990675, 0.00105233], False, 3, [1, 1, 1, 1, 1, 1, 1, 1, 1, 1, 1, 1, 1, 1, 1, 1, 1, 1, 1], False),  # 33
    Part.BSplineCurve([App.Vector(-12.125095, -5.154277, 0), App.Vector(-12.133669, -5.163096, 0), App.Vector(-12.150522, -5.18043, 0), App.Vector(-12.178137, -5.203115, 0), App.Vector(-12.206989, -5.222389, 0), App.Vector(-12.23725, -5.237948, 0), App.Vector(-12.268734, -5.250366, 0), App.Vector(-12.301624, -5.258917, 0), App.Vector(-12.335746, -5.264151, 0), App.Vector(-12.358876, -5.264846, 0), App.Vector(-12.370598, -5.265198, 0)], [4, 1, 1, 1, 1, 1, 1, 1, 4], [0, 0.000036878, 0.000072482, 0.000106986, 0.00014078, 0.00017437, 0.000208309, 0.000242526, 0.000277679], False, 3, [1, 1, 1, 1, 1, 1, 1, 1, 1, 1, 1], False),  # 34
    Part.BSplineCurve([App.Vector(-12.001962, -4.792764, 0), App.Vector(-12.002383, -4.811264, 0), App.Vector(-12.003207, -4.847417, 0), App.Vector(-12.00873, -4.900203, 0), App.Vector(-12.018384, -4.949996, 0), App.Vector(-12.031884, -4.996844, 0), App.Vector(-12.049147, -5.040782, 0), App.Vector(-12.070413, -5.08181, 0), App.Vector(-12.095511, -5.119935, 0), App.Vector(-12.115258, -5.142857, 0), App.Vector(-12.125095, -5.154277, 0)], [4, 1, 1, 1, 1, 1, 1, 1, 4], [0, 0.000055498, 0.000108457, 0.000158999, 0.000207469, 0.000254523, 0.000300379, 0.00034589, 0.00039107], False, 3, [1, 1, 1, 1, 1, 1, 1, 1, 1, 1, 1], False),  # 35
    Part.BSplineCurve([App.Vector(-12.492204, -4.158019, 0), App.Vector(-12.481165, -4.158226, 0), App.Vector(-12.459263, -4.158638, 0), App.Vector(-12.426816, -4.16307, 0), App.Vector(-12.394913, -4.169172, 0), App.Vector(-12.363754, -4.178558, 0), App.Vector(-12.333055, -4.190199, 0), App.Vector(-12.303153, -4.204837, 0), App.Vector(-12.273627, -4.221656, 0), App.Vector(-12.245054, -4.24126, 0), App.Vector(-12.217396, -4.263059, 0), App.Vector(-12.191103, -4.28694, 0), App.Vector(-12.166751, -4.31314, 0), App.Vector(-12.143343, -4.340858, 0), App.Vector(-12.121926, -4.370958, 0), App.Vector(-12.101554, -4.4028, 0), App.Vector(-12.083509, -4.437044, 0), App.Vector(-12.066363, -4.472756, 0), App.Vector(-12.051269, -4.510002, 0), App.Vector(-12.037904, -4.548157, 0), App.Vector(-12.027112, -4.587234, 0), App.Vector(-12.017882, -4.626846, 0), App.Vector(-12.010719, -4.667266, 0), App.Vector(-12.005707, -4.70837, 0), App.Vector(-12.002526, -4.750313, 0), App.Vector(-12.002151, -4.778512, 0), App.Vector(-12.001962, -4.792764, 0)], [4, 1, 1, 1, 1, 1, 1, 1, 1, 1, 1, 1, 1, 1, 1, 1, 1, 1, 1, 1, 1, 1, 1, 1, 4], [0, 0.000033097, 0.000065662, 0.000098093, 0.000130454, 0.000163149, 0.000196488, 0.000230221, 0.000265008, 0.000300331, 0.000335806, 0.000371442, 0.000407566, 0.000444563, 0.000482183, 0.000520883, 0.000560598, 0.000600991, 0.00064138, 0.000681813, 0.000722543, 0.000763366, 0.000804893, 0.000846727, 0.000889479], False, 3, [1, 1, 1, 1, 1, 1, 1, 1, 1, 1, 1, 1, 1, 1, 1, 1, 1, 1, 1, 1, 1, 1, 1, 1, 1, 1, 1], False),  # 36
    Part.BSplineCurve([App.Vector(-12.864911, -4.642664, 0), App.Vector(-12.864308, -4.619656, 0), App.Vector(-12.863132, -4.574744, 0), App.Vector(-12.854429, -4.509172, 0), App.Vector(-12.839696, -4.447272, 0), App.Vector(-12.822395, -4.398577, 0), App.Vector(-12.806018, -4.361919, 0), App.Vector(-12.79262, -4.336186, 0), App.Vector(-12.77778, -4.312362, 0), App.Vector(-12.762246, -4.289967, 0), App.Vector(-12.74539, -4.269317, 0), App.Vector(-12.727389, -4.250239, 0), App.Vector(-12.708171, -4.232905, 0), App.Vector(-12.688073, -4.216983, 0), App.Vector(-12.666767, -4.203057, 0), App.Vector(-12.644505, -4.191086, 0), App.Vector(-12.621414, -4.180769, 0), App.Vector(-12.597334, -4.172401, 0), App.Vector(-12.572285, -4.166088, 0), App.Vector(-12.546442, -4.161496, 0), App.Vector(-12.519659, -4.158636, 0), App.Vector(-12.501455, -4.158227, 0), App.Vector(-12.492204, -4.158019, 0)], [4, 1, 1, 1, 1, 1, 1, 1, 1, 1, 1, 1, 1, 1, 1, 1, 1, 1, 1, 1, 4], [0, 0.000069012, 0.000134712, 0.000198022, 0.000259579, 0.000289414, 0.000318432, 0.000346532, 0.000373564, 0.000400145, 0.00042642, 0.000452175, 0.000477724, 0.000503267, 0.000528424, 0.00055348, 0.000579065, 0.000604796, 0.000630896, 0.000657755, 0.000685504], False, 3, [1, 1, 1, 1, 1, 1, 1, 1, 1, 1, 1, 1, 1, 1, 1, 1, 1, 1, 1, 1, 1, 1, 1], False),  # 37
    Part.BSplineCurve([App.Vector(-12.370598, -5.265198, 0), App.Vector(-12.382314, -5.264975, 0), App.Vector(-12.405385, -5.264534, 0), App.Vector(-12.439528, -5.260405, 0), App.Vector(-12.472806, -5.254641, 0), App.Vector(-12.505003, -5.245388, 0), App.Vector(-12.536419, -5.234499, 0), App.Vector(-12.566541, -5.220073, 0), App.Vector(-12.596087, -5.204049, 0), App.Vector(-12.624325, -5.185086, 0), App.Vector(-12.651275, -5.163901, 0), App.Vector(-12.677106, -5.140767, 0), App.Vector(-12.701243, -5.115241, 0), App.Vector(-12.723915, -5.087622, 0), App.Vector(-12.745319, -5.058108, 0), App.Vector(-12.765258, -5.026437, 0), App.Vector(-12.783454, -4.992498, 0), App.Vector(-12.800436, -4.956873, 0), App.Vector(-12.815619, -4.919838, 0), App.Vector(-12.828923, -4.882002, 0), App.Vector(-12.839729, -4.843442, 0), App.Vector(-12.848996, -4.804517, 0), App.Vector(-12.85613, -4.76494, 0), App.Vector(-12.86117, -4.724772, 0), App.Vector(-12.864339, -4.683929, 0), App.Vector(-12.864719, -4.656493, 0), App.Vector(-12.864911, -4.642664, 0)], [4, 1, 1, 1, 1, 1, 1, 1, 1, 1, 1, 1, 1, 1, 1, 1, 1, 1, 1, 1, 1, 1, 1, 1, 4], [0, 0.000035131, 0.000069182, 0.000103064, 0.000136333, 0.000169567, 0.000202688, 0.000236393, 0.000270332, 0.000304582, 0.000339169, 0.000374259, 0.000409863, 0.000446299, 0.000483568, 0.000522044, 0.000561759, 0.000601917, 0.000642065, 0.000682008, 0.000721995, 0.000762067, 0.000802584, 0.000843403, 0.000884884], False, 3, [1, 1, 1, 1, 1, 1, 1, 1, 1, 1, 1, 1, 1, 1, 1, 1, 1, 1, 1, 1, 1, 1, 1, 1, 1, 1, 1], False),  # 38
], False)
sketch3.addConstraint([
    Sketcher.Constraint("Block", 19),
    Sketcher.Constraint("Block", 20),
    Sketcher.Constraint("Block", 21),
    Sketcher.Constraint("Block", 22),
    Sketcher.Constraint("Block", 26),
    Sketcher.Constraint("Block", 27),
    Sketcher.Constraint("Block", 28),
    Sketcher.Constraint("Block", 29),
    Sketcher.Constraint("Block", 30),
    Sketcher.Constraint("Block", 31),
    Sketcher.Constraint("Block", 32),
    Sketcher.Constraint("Block", 33),
    Sketcher.Constraint("Block", 34),
    Sketcher.Constraint("Block", 35),
    Sketcher.Constraint("Block", 36),
    Sketcher.Constraint("Block", 37),
    Sketcher.Constraint("Block", 38),
    Sketcher.Constraint("Coincident", 0, 2, 1, 1),
    Sketcher.Constraint("Coincident", 1, 2, 2, 1),
    Sketcher.Constraint("Coincident", 2, 2, 3, 1),
    Sketcher.Constraint("Coincident", 3, 2, 4, 1),
    Sketcher.Constraint("Coincident", 4, 2, 5, 1),
    Sketcher.Constraint("Coincident", 5, 2, 0, 1),
    Sketcher.Constraint("Coincident", 6, 2, 7, 1),
    Sketcher.Constraint("Coincident", 7, 2, 8, 1),
    Sketcher.Constraint("Coincident", 8, 2, 9, 1),
    Sketcher.Constraint("Coincident", 9, 2, 10, 1),
    Sketcher.Constraint("Coincident", 10, 2, 11, 1),
    Sketcher.Constraint("Coincident", 11, 2, 12, 1),
    Sketcher.Constraint("Coincident", 12, 2, 13, 1),
    Sketcher.Constraint("Coincident", 13, 2, 14, 1),
    Sketcher.Constraint("Coincident", 14, 2, 15, 1),
    Sketcher.Constraint("Coincident", 15, 2, 16, 1),
    Sketcher.Constraint("Coincident", 16, 2, 17, 1),
    Sketcher.Constraint("Coincident", 17, 2, 6, 1),
    Sketcher.Constraint("Coincident", 18, 2, 19, 2),
    Sketcher.Constraint("Coincident", 22, 1, 23, 1),
    Sketcher.Constraint("Coincident", 23, 2, 24, 1),
    Sketcher.Constraint("Coincident", 24, 2, 25, 1),
    Sketcher.Constraint("Coincident", 25, 2, 26, 2),
    Sketcher.Constraint("Coincident", 29, 1, 18, 1),
    Sketcher.Constraint("Horizontal", 0),
    Sketcher.Constraint("Horizontal", 2),
    Sketcher.Constraint("Horizontal", 4),
    Sketcher.Constraint("Horizontal", 7),
    Sketcher.Constraint("Horizontal", 9),
    Sketcher.Constraint("Horizontal", 11),
    Sketcher.Constraint("Horizontal", 13),
    Sketcher.Constraint("Horizontal", 15),
    Sketcher.Constraint("Horizontal", 17),
    Sketcher.Constraint("Horizontal", 23),
    Sketcher.Constraint("Vertical", 24),
    Sketcher.Constraint("Horizontal", 25),
    Sketcher.Constraint("Parallel", 8, 16),
    Sketcher.Constraint("Horizontal", 5, 2, 6, 2),
    Sketcher.Constraint("Horizontal", 2, 2, 8, 2),
    Sketcher.Constraint("Horizontal", 4, 2, 10, 2),
    Sketcher.Constraint("Horizontal", 13, 2, 23, 2),
    Sketcher.Constraint("DistanceY", 0, 2, 1, 2, Q("0.05 in")),
    Sketcher.Constraint("DistanceX", 1, 2, 8, 2, Q("0.025 in")),
    Sketcher.Constraint("DistanceX", 4, 2, 4, 1, Q("0.427149 mm")),
    Sketcher.Constraint("DistanceX", 9, 1, 9, 2, Q("0.542141 mm")),
    Sketcher.Constraint("DistanceX", 15, 2, 15, 1, Q("0.42893 mm")),
    Sketcher.Constraint("DistanceX", 5, 2, -1, 1, Q("15.3235 mm")),
    Sketcher.Constraint("DistanceX", 7, 2, -1, 1, Q("14.786702 mm")),
    Sketcher.Constraint("DistanceY", 14, 2, -1, 1, Q("4.809301 mm")),
    Sketcher.Constraint("DistanceX", 2, 2, 11, 2, Q("0.219299 mm")),
    Sketcher.Constraint("Distance", 5, Q("1.162011 mm")),
    Sketcher.Constraint("Distance", 6, Q("0.11483 mm")),
    Sketcher.Constraint("Distance", 8, Q("1.276611 mm")),
    Sketcher.Constraint("DistanceX", 0, 2, 0, 1, Q("0.098456 mm")),
    Sketcher.Constraint("DistanceX", 2, 1, 2, 2, Q("0.526114 mm")),
    Sketcher.Constraint("DistanceX", 7, 2, 7, 1, Q("0.537817 mm")),
    Sketcher.Constraint("DistanceX", 11, 2, 11, 1, Q("0.443177 mm")),
    Sketcher.Constraint("DistanceX", 13, 1, 13, 2, Q("0.427913 mm")),
    Sketcher.Constraint("DistanceX", 17, 1, 17, 2, Q("0.436817 mm")),
    Sketcher.Constraint("DistanceX", 23, 2, 23, 1, Q("0.455897 mm")),
    Sketcher.Constraint("DistanceY", 0, 2, -1, 1, Q("5.346608 mm")),
    Sketcher.Constraint("DistanceX", 3, 2, -1, 1, Q("15.014141 mm")),
    Sketcher.Constraint("DistanceX", 11, 2, 12, 2, Q("0.05139 mm")),
    Sketcher.Constraint("DistanceX", 13, 2, 14, 2, Q("0.01272 mm")),
])
pad3 = body.newObject("PartDesign::Pad", "Pad002")
pad3.Profile = sketch3
pad3.setExpression("Length", "Params.pad3_length")
pad3.Reversed = True
doc.recompute()

linearpattern2 = body.newObject("PartDesign::LinearPattern", "LinearPattern001")
linearpattern2.Originals = [pad3]
linearpattern2.Direction = (doc.getObject("X_Axis"), [""])
linearpattern2.Mode = "offset"
linearpattern2.setExpression("Offset", "Params.linearpattern2_pitch")
linearpattern2.Occurrences = 2
body.Tip = linearpattern2

# Sketch on XZ plane
sketch4 = body.newObject("Sketcher::SketchObject", "Sketch003")
sketch4.AttachmentSupport = (doc.getObject("XZ_Plane"), [""])
sketch4.MapMode = "FlatFace"
sketch4.addGeometry([
    Part.Circle(App.Vector(-9.8, -4.8, 0), App.Vector(0, 0, 1), 1.5),
    Part.Circle(App.Vector(-9.8, -4.8, 0), App.Vector(0, 0, 1), 0.6),
], False)
sketch4.addConstraint([
    Sketcher.Constraint("Coincident", 1, 3, 0, 3),
    Sketcher.Constraint("Diameter", 1, Q("0.05 in")),
    Sketcher.Constraint("Diameter", 0, Q("0.118 in")),
    Sketcher.Constraint("DistanceY", 0, 3, -1, 1, Q("4.754641 mm")),
    Sketcher.Constraint("DistanceX", 0, 3, -1, 1, Q("9.795613 mm")),
])
sketch4.setExpression("Constraints[1]", "Params.sketch4_diameter")
sketch4.setExpression("Constraints[2]", "Params.sketch4_diameter2")
pad4 = body.newObject("PartDesign::Pad", "Pad003")
pad4.Profile = sketch4
pad4.setExpression("Length", "Params.pad4_length")
pad4.Reversed = True

# Sketch on XY plane
sketch5 = body.newObject("Sketcher::SketchObject", "Sketch004")
sketch5.AttachmentSupport = (doc.getObject("XY_Plane"), [""])
sketch5.MapMode = "FlatFace"
sketch5.AttachmentOffset = App.Placement(App.Vector(0, 0, -0.785891), App.Rotation())
sketch5.addGeometry([
    Part.LineSegment(App.Vector(-26, 3, 0), App.Vector(-26, -5, 0)),
    Part.LineSegment(App.Vector(-26, -5, 0), App.Vector(6, -5, 0)),
    Part.LineSegment(App.Vector(6, -5, 0), App.Vector(6, 3, 0)),
    Part.LineSegment(App.Vector(6, 3, 0), App.Vector(-26, 3, 0)),
], False)
sketch5.addConstraint([
    Sketcher.Constraint("Coincident", 0, 2, 1, 1),
    Sketcher.Constraint("Coincident", 1, 2, 2, 1),
    Sketcher.Constraint("Coincident", 2, 2, 3, 1),
    Sketcher.Constraint("Coincident", 3, 2, 0, 1),
    Sketcher.Constraint("Vertical", 0),
    Sketcher.Constraint("Horizontal", 1),
    Sketcher.Constraint("Vertical", 2),
    Sketcher.Constraint("Horizontal", 3),
    Sketcher.Constraint("DistanceX", 1, 1, 1, 2, Q("1.25 in")),
    Sketcher.Constraint("DistanceY", 0, 2, 0, 1, Q("0.3125 in")),
    Sketcher.Constraint("DistanceY", 0, 2, -1, 1, Q("0.1875 in")),
    Sketcher.Constraint("DistanceX", 0, 2, -1, 1, Q("25.670613 mm")),
])
sketch5.setExpression("Constraints[8]", "Params.sketch5_width")
sketch5.setExpression("Constraints[9]", "Params.sketch5_height")
pad5 = body.newObject("PartDesign::Pad", "Pad004")
pad5.Profile = sketch5
pad5.setExpression("Length", "Params.pad5_length")

# Sketch on XY plane
sketch6 = body.newObject("Sketcher::SketchObject", "Sketch005")
sketch6.AttachmentSupport = (doc.getObject("XY_Plane"), [""])
sketch6.MapMode = "FlatFace"
sketch6.AttachmentOffset = App.Placement(App.Vector(0, 0, 0.814309), App.Rotation())
sketch6.addGeometry([
    Part.Circle(App.Vector(-21.7, -0.8, 0), App.Vector(0, 0, 1), 2.4),
    Part.Circle(App.Vector(-21.7, -0.8, 0), App.Vector(0, 0, 1), 1.6),
], False)
sketch6.addConstraint([
    Sketcher.Constraint("Coincident", 1, 3, 0, 3),
    Sketcher.Constraint("Diameter", 0, Q("0.191 in")),
    Sketcher.Constraint("Diameter", 1, Q("0.125 in")),
    Sketcher.Constraint("DistanceY", 0, 3, -1, 1, Q("0.03125 in")),
    Sketcher.Constraint("DistanceX", 0, 3, -1, 1, Q("21.701863 mm")),
])
sketch6.setExpression("Constraints[1]", "Params.sketch6_diameter")
sketch6.setExpression("Constraints[2]", "Params.sketch6_diameter2")
pad6 = body.newObject("PartDesign::Pad", "Pad005")
pad6.Profile = sketch6
pad6.setExpression("Length", "Params.pad6_length")
doc.recompute()

linearpattern3 = body.newObject("PartDesign::LinearPattern", "LinearPattern002")
linearpattern3.Originals = [pad6]
linearpattern3.Direction = (doc.getObject("X_Axis"), [""])
linearpattern3.Mode = "offset"
linearpattern3.setExpression("Offset", "Params.linearpattern3_pitch")
linearpattern3.Occurrences = 4
body.Tip = linearpattern3

doc.recompute()
